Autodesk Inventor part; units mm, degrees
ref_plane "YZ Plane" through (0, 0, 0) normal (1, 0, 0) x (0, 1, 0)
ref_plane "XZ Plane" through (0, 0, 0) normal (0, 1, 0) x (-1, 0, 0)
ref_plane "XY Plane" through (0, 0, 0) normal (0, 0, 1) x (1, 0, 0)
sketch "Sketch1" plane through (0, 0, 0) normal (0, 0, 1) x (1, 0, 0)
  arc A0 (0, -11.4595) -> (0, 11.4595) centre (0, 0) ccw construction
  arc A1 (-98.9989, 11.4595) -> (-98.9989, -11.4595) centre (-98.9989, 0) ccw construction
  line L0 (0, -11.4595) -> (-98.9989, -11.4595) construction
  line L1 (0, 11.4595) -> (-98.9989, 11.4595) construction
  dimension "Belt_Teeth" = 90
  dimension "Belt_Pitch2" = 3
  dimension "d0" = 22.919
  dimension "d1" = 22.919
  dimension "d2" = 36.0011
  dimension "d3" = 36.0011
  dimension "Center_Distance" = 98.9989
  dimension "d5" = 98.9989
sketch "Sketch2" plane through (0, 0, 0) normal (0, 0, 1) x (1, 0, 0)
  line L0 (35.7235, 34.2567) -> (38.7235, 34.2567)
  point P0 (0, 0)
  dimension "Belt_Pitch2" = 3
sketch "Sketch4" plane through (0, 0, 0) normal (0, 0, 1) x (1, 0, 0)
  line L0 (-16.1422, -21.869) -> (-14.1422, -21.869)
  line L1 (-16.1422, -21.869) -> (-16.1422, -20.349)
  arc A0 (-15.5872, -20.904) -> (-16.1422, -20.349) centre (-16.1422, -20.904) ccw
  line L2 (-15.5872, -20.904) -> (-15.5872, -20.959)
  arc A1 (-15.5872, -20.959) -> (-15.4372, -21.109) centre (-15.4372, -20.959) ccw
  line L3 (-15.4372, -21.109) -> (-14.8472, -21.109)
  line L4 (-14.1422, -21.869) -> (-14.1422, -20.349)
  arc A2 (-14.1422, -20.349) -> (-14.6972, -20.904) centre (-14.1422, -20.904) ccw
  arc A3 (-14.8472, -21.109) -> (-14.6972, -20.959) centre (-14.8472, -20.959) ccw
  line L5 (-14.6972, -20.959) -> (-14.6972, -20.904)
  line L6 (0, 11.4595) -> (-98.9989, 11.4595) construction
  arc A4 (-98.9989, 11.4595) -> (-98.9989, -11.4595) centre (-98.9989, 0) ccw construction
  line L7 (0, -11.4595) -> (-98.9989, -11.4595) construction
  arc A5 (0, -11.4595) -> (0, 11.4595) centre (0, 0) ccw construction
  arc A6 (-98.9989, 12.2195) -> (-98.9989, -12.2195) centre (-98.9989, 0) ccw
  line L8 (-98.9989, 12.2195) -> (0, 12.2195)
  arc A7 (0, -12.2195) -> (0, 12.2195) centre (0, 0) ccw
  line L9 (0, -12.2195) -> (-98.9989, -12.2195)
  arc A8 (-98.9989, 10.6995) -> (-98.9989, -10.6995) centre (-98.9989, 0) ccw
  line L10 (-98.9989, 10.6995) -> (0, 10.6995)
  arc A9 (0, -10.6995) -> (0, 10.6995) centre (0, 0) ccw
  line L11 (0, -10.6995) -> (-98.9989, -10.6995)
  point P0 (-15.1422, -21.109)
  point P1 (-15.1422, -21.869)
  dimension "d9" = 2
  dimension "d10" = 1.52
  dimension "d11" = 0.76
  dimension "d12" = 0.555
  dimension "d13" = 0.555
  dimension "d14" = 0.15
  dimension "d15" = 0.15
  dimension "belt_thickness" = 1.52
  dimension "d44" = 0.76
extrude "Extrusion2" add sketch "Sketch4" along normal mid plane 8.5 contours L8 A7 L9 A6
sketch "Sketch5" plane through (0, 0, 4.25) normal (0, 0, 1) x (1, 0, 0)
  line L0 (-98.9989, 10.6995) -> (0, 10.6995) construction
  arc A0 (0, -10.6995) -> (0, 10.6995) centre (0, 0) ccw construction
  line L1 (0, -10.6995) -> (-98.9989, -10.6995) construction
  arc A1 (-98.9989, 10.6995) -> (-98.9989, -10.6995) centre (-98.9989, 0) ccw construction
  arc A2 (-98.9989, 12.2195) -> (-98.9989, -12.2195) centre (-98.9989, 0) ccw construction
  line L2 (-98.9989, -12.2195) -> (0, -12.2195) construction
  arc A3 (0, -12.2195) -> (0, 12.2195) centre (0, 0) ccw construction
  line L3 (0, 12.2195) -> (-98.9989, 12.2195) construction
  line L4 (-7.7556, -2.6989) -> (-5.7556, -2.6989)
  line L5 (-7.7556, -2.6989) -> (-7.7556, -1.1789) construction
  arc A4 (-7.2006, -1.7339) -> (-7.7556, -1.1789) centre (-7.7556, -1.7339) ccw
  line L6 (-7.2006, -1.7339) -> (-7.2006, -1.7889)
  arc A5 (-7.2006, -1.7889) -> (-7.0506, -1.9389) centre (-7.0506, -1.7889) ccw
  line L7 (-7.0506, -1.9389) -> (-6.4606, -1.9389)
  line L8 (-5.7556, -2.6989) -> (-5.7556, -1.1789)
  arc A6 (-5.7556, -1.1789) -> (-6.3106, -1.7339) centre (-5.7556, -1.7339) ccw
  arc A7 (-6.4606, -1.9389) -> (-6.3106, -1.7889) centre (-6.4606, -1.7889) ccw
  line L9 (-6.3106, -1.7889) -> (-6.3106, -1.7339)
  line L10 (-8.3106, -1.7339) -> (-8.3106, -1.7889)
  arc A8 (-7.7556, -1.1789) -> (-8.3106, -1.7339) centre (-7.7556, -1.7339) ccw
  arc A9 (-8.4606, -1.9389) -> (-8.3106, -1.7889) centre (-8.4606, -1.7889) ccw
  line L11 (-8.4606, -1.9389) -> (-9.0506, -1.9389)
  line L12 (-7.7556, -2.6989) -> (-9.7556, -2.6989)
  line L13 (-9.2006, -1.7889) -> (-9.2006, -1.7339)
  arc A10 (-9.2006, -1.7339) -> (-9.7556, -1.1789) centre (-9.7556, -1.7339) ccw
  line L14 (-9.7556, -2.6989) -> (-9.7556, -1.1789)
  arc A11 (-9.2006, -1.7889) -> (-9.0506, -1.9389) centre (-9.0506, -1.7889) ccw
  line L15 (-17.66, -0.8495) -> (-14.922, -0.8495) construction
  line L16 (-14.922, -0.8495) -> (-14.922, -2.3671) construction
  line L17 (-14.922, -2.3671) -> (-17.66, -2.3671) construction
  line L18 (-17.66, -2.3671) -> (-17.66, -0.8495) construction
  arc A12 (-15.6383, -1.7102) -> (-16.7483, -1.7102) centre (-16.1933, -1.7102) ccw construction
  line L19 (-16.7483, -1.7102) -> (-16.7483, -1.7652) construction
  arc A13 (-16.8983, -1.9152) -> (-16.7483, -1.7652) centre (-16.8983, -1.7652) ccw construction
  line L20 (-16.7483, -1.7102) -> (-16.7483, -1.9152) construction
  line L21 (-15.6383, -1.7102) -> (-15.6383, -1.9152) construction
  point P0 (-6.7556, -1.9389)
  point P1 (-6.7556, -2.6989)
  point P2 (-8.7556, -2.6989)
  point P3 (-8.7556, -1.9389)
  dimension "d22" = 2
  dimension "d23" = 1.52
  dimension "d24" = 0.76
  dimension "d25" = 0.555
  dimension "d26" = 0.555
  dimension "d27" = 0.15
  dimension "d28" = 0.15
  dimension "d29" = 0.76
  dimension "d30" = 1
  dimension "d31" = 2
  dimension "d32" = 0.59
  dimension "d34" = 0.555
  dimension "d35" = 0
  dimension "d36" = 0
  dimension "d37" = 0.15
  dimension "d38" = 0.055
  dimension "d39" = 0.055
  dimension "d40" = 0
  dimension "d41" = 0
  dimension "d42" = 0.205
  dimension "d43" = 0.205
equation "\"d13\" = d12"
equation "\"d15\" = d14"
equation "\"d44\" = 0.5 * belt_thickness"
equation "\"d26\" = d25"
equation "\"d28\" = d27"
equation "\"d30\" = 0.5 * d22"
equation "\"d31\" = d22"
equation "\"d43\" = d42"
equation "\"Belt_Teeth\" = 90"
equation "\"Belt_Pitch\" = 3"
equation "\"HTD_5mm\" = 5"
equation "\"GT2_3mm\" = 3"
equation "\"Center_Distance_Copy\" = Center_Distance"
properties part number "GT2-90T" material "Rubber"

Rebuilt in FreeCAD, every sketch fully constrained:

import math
import FreeCAD as App
import Part
import Sketcher

V = App.Vector
Q = App.Units.Quantity

doc = App.newDocument("Part")
body = doc.addObject("PartDesign::Body", "Body")

# Sketch on XY plane
sketch1 = body.newObject("Sketcher::SketchObject", "Sketch")
sketch1.AttachmentSupport = (doc.getObject("XY_Plane"), [""])
sketch1.MapMode = "FlatFace"
sketch1.addGeometry([
    Part.LineSegment(V(0, 12, 0), V(-99, 12, 0)),  # 0
    Part.ArcOfCircle(Part.Circle(V(-99, 0, 0), V(0, 0, 1), 12), math.radians(90), math.radians(270)),  # 1
    Part.LineSegment(V(-99, -12, 0), V(0, -12, 0)),  # 2
    Part.ArcOfCircle(Part.Circle(V(0, 0, 0), V(0, 0, 1), 12), math.radians(-90), math.radians(90)),  # 3
    Part.ArcOfCircle(Part.Circle(V(-99, 0, 0), V(0, 0, 1), 11), math.radians(90), math.radians(270)),  # 4
    Part.LineSegment(V(-99, 11, 0), V(0, 11, 0)),  # 5
    Part.ArcOfCircle(Part.Circle(V(0, 0, 0), V(0, 0, 1), 11), math.radians(-90), math.radians(90)),  # 6
    Part.LineSegment(V(0, -11, 0), V(-99, -11, 0)),  # 7
], False)
sketch1.addConstraint([
    Sketcher.Constraint("Tangent", 0, 2, 1, 1),
    Sketcher.Constraint("Tangent", 1, 2, 2, 1),
    Sketcher.Constraint("Tangent", 2, 2, 3, 1),
    Sketcher.Constraint("Tangent", 3, 2, 0, 1),
    Sketcher.Constraint("Tangent", 4, 1, 5, 1),
    Sketcher.Constraint("Tangent", 5, 2, 6, 2),
    Sketcher.Constraint("Tangent", 6, 1, 7, 1),
    Sketcher.Constraint("Tangent", 7, 2, 4, 2),
    Sketcher.Constraint("Horizontal", 0),
    Sketcher.Constraint("Horizontal", 2),
    Sketcher.Constraint("Horizontal", 5),
    Sketcher.Constraint("Horizontal", 7),
    Sketcher.Constraint("Coincident", 3, 3, -1, 1),
    Sketcher.Constraint("Coincident", 6, 3, -1, 1),
    Sketcher.Constraint("Vertical", 4, 3, 0, 2),
    Sketcher.Constraint("DistanceY", 4, 1, 0, 2, Q("1.52 mm")),
    Sketcher.Constraint("Radius", 1, Q("12.2195 mm")),
    Sketcher.Constraint("DistanceX", 0, 2, 0, 1, Q("98.999 mm")),
])
pad1 = body.newObject("PartDesign::Pad", "Pad")
pad1.Profile = sketch1
pad1.Length = 8.5
pad1.Midplane = True

doc.recompute()
